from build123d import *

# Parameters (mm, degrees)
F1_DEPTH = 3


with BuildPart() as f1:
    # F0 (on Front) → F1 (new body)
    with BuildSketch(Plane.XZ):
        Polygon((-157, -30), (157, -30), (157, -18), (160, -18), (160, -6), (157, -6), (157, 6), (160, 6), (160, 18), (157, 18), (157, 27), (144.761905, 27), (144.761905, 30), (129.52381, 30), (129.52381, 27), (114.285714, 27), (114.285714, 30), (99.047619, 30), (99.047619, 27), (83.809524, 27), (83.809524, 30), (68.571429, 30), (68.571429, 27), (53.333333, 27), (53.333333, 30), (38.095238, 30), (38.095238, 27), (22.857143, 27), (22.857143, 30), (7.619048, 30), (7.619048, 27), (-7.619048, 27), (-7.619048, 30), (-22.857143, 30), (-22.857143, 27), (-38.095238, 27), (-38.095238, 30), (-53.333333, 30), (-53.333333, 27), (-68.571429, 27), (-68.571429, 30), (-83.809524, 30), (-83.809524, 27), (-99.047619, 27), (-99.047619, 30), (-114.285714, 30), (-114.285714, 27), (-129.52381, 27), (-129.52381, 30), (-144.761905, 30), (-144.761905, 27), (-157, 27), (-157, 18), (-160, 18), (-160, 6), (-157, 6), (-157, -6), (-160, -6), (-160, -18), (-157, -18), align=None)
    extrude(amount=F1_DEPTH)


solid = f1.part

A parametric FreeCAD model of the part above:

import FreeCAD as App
import Part
import Sketcher
Q = App.Units.Quantity

doc = App.newDocument("Part")
body = doc.addObject("PartDesign::Body", "Body")

# Sketch on XZ plane
sketch1 = body.newObject("Sketcher::SketchObject", "Sketch")
sketch1.AttachmentSupport = (doc.getObject("XZ_Plane"), [""])
sketch1.MapMode = "FlatFace"
sketch1.addGeometry([
    Part.LineSegment(App.Vector(-157, -30, 0), App.Vector(157, -30, 0)),  # 0
    Part.LineSegment(App.Vector(157, -30, 0), App.Vector(157, -18, 0)),  # 1
    Part.LineSegment(App.Vector(157, -18, 0), App.Vector(160, -18, 0)),  # 2
    Part.LineSegment(App.Vector(160, -18, 0), App.Vector(160, -6, 0)),  # 3
    Part.LineSegment(App.Vector(160, -6, 0), App.Vector(157, -6, 0)),  # 4
    Part.LineSegment(App.Vector(157, -6, 0), App.Vector(157, 6, 0)),  # 5
    Part.LineSegment(App.Vector(157, 6, 0), App.Vector(160, 6, 0)),  # 6
    Part.LineSegment(App.Vector(160, 6, 0), App.Vector(160, 18, 0)),  # 7
    Part.LineSegment(App.Vector(160, 18, 0), App.Vector(157, 18, 0)),  # 8
    Part.LineSegment(App.Vector(157, 18, 0), App.Vector(157, 27, 0)),  # 9
    Part.LineSegment(App.Vector(157, 27, 0), App.Vector(144.8, 27, 0)),  # 10
    Part.LineSegment(App.Vector(144.8, 27, 0), App.Vector(144.8, 30, 0)),  # 11
    Part.LineSegment(App.Vector(144.8, 30, 0), App.Vector(129.5, 30, 0)),  # 12
    Part.LineSegment(App.Vector(129.5, 30, 0), App.Vector(129.5, 27, 0)),  # 13
    Part.LineSegment(App.Vector(129.5, 27, 0), App.Vector(114.3, 27, 0)),  # 14
    Part.LineSegment(App.Vector(114.3, 27, 0), App.Vector(114.3, 30, 0)),  # 15
    Part.LineSegment(App.Vector(114.3, 30, 0), App.Vector(99, 30, 0)),  # 16
    Part.LineSegment(App.Vector(99, 30, 0), App.Vector(99, 27, 0)),  # 17
    Part.LineSegment(App.Vector(99, 27, 0), App.Vector(83.8, 27, 0)),  # 18
    Part.LineSegment(App.Vector(83.8, 27, 0), App.Vector(83.8, 30, 0)),  # 19
    Part.LineSegment(App.Vector(83.8, 30, 0), App.Vector(68.6, 30, 0)),  # 20
    Part.LineSegment(App.Vector(68.6, 30, 0), App.Vector(68.6, 27, 0)),  # 21
    Part.LineSegment(App.Vector(68.6, 27, 0), App.Vector(53.3, 27, 0)),  # 22
    Part.LineSegment(App.Vector(53.3, 27, 0), App.Vector(53.3, 30, 0)),  # 23
    Part.LineSegment(App.Vector(53.3, 30, 0), App.Vector(38.1, 30, 0)),  # 24
    Part.LineSegment(App.Vector(38.1, 30, 0), App.Vector(38.1, 27, 0)),  # 25
    Part.LineSegment(App.Vector(38.1, 27, 0), App.Vector(22.9, 27, 0)),  # 26
    Part.LineSegment(App.Vector(22.9, 27, 0), App.Vector(22.9, 30, 0)),  # 27
    Part.LineSegment(App.Vector(22.9, 30, 0), App.Vector(7.6, 30, 0)),  # 28
    Part.LineSegment(App.Vector(7.6, 30, 0), App.Vector(7.6, 27, 0)),  # 29
    Part.LineSegment(App.Vector(7.6, 27, 0), App.Vector(-7.6, 27, 0)),  # 30
    Part.LineSegment(App.Vector(-7.6, 27, 0), App.Vector(-7.6, 30, 0)),  # 31
    Part.LineSegment(App.Vector(-7.6, 30, 0), App.Vector(-22.9, 30, 0)),  # 32
    Part.LineSegment(App.Vector(-22.9, 30, 0), App.Vector(-22.9, 27, 0)),  # 33
    Part.LineSegment(App.Vector(-22.9, 27, 0), App.Vector(-38.1, 27, 0)),  # 34
    Part.LineSegment(App.Vector(-38.1, 27, 0), App.Vector(-38.1, 30, 0)),  # 35
    Part.LineSegment(App.Vector(-38.1, 30, 0), App.Vector(-53.3, 30, 0)),  # 36
    Part.LineSegment(App.Vector(-53.3, 30, 0), App.Vector(-53.3, 27, 0)),  # 37
    Part.LineSegment(App.Vector(-53.3, 27, 0), App.Vector(-68.6, 27, 0)),  # 38
    Part.LineSegment(App.Vector(-68.6, 27, 0), App.Vector(-68.6, 30, 0)),  # 39
    Part.LineSegment(App.Vector(-68.6, 30, 0), App.Vector(-83.8, 30, 0)),  # 40
    Part.LineSegment(App.Vector(-83.8, 30, 0), App.Vector(-83.8, 27, 0)),  # 41
    Part.LineSegment(App.Vector(-83.8, 27, 0), App.Vector(-99, 27, 0)),  # 42
    Part.LineSegment(App.Vector(-99, 27, 0), App.Vector(-99, 30, 0)),  # 43
    Part.LineSegment(App.Vector(-99, 30, 0), App.Vector(-114.3, 30, 0)),  # 44
    Part.LineSegment(App.Vector(-114.3, 30, 0), App.Vector(-114.3, 27, 0)),  # 45
    Part.LineSegment(App.Vector(-114.3, 27, 0), App.Vector(-129.5, 27, 0)),  # 46
    Part.LineSegment(App.Vector(-129.5, 27, 0), App.Vector(-129.5, 30, 0)),  # 47
    Part.LineSegment(App.Vector(-129.5, 30, 0), App.Vector(-144.8, 30, 0)),  # 48
    Part.LineSegment(App.Vector(-144.8, 30, 0), App.Vector(-144.8, 27, 0)),  # 49
    Part.LineSegment(App.Vector(-144.8, 27, 0), App.Vector(-157, 27, 0)),  # 50
    Part.LineSegment(App.Vector(-157, 27, 0), App.Vector(-157, 18, 0)),  # 51
    Part.LineSegment(App.Vector(-157, 18, 0), App.Vector(-160, 18, 0)),  # 52
    Part.LineSegment(App.Vector(-160, 18, 0), App.Vector(-160, 6, 0)),  # 53
    Part.LineSegment(App.Vector(-160, 6, 0), App.Vector(-157, 6, 0)),  # 54
    Part.LineSegment(App.Vector(-157, 6, 0), App.Vector(-157, -6, 0)),  # 55
    Part.LineSegment(App.Vector(-157, -6, 0), App.Vector(-160, -6, 0)),  # 56
    Part.LineSegment(App.Vector(-160, -6, 0), App.Vector(-160, -18, 0)),  # 57
    Part.LineSegment(App.Vector(-160, -18, 0), App.Vector(-157, -18, 0)),  # 58
    Part.LineSegment(App.Vector(-157, -18, 0), App.Vector(-157, -30, 0)),  # 59
], False)
sketch1.addConstraint([
    Sketcher.Constraint("Coincident", 0, 2, 1, 1),
    Sketcher.Constraint("Coincident", 1, 2, 2, 1),
    Sketcher.Constraint("Coincident", 2, 2, 3, 1),
    Sketcher.Constraint("Coincident", 3, 2, 4, 1),
    Sketcher.Constraint("Coincident", 4, 2, 5, 1),
    Sketcher.Constraint("Coincident", 5, 2, 6, 1),
    Sketcher.Constraint("Coincident", 6, 2, 7, 1),
    Sketcher.Constraint("Coincident", 7, 2, 8, 1),
    Sketcher.Constraint("Coincident", 8, 2, 9, 1),
    Sketcher.Constraint("Coincident", 9, 2, 10, 1),
    Sketcher.Constraint("Coincident", 10, 2, 11, 1),
    Sketcher.Constraint("Coincident", 11, 2, 12, 1),
    Sketcher.Constraint("Coincident", 12, 2, 13, 1),
    Sketcher.Constraint("Coincident", 13, 2, 14, 1),
    Sketcher.Constraint("Coincident", 14, 2, 15, 1),
    Sketcher.Constraint("Coincident", 15, 2, 16, 1),
    Sketcher.Constraint("Coincident", 16, 2, 17, 1),
    Sketcher.Constraint("Coincident", 17, 2, 18, 1),
    Sketcher.Constraint("Coincident", 18, 2, 19, 1),
    Sketcher.Constraint("Coincident", 19, 2, 20, 1),
    Sketcher.Constraint("Coincident", 20, 2, 21, 1),
    Sketcher.Constraint("Coincident", 21, 2, 22, 1),
    Sketcher.Constraint("Coincident", 22, 2, 23, 1),
    Sketcher.Constraint("Coincident", 23, 2, 24, 1),
    Sketcher.Constraint("Coincident", 24, 2, 25, 1),
    Sketcher.Constraint("Coincident", 25, 2, 26, 1),
    Sketcher.Constraint("Coincident", 26, 2, 27, 1),
    Sketcher.Constraint("Coincident", 27, 2, 28, 1),
    Sketcher.Constraint("Coincident", 28, 2, 29, 1),
    Sketcher.Constraint("Coincident", 29, 2, 30, 1),
    Sketcher.Constraint("Coincident", 30, 2, 31, 1),
    Sketcher.Constraint("Coincident", 31, 2, 32, 1),
    Sketcher.Constraint("Coincident", 32, 2, 33, 1),
    Sketcher.Constraint("Coincident", 33, 2, 34, 1),
    Sketcher.Constraint("Coincident", 34, 2, 35, 1),
    Sketcher.Constraint("Coincident", 35, 2, 36, 1),
    Sketcher.Constraint("Coincident", 36, 2, 37, 1),
    Sketcher.Constraint("Coincident", 37, 2, 38, 1),
    Sketcher.Constraint("Coincident", 38, 2, 39, 1),
    Sketcher.Constraint("Coincident", 39, 2, 40, 1),
    Sketcher.Constraint("Coincident", 40, 2, 41, 1),
    Sketcher.Constraint("Coincident", 41, 2, 42, 1),
    Sketcher.Constraint("Coincident", 42, 2, 43, 1),
    Sketcher.Constraint("Coincident", 43, 2, 44, 1),
    Sketcher.Constraint("Coincident", 44, 2, 45, 1),
    Sketcher.Constraint("Coincident", 45, 2, 46, 1),
    Sketcher.Constraint("Coincident", 46, 2, 47, 1),
    Sketcher.Constraint("Coincident", 47, 2, 48, 1),
    Sketcher.Constraint("Coincident", 48, 2, 49, 1),
    Sketcher.Constraint("Coincident", 49, 2, 50, 1),
    Sketcher.Constraint("Coincident", 50, 2, 51, 1),
    Sketcher.Constraint("Coincident", 51, 2, 52, 1),
    Sketcher.Constraint("Coincident", 52, 2, 53, 1),
    Sketcher.Constraint("Coincident", 53, 2, 54, 1),
    Sketcher.Constraint("Coincident", 54, 2, 55, 1),
    Sketcher.Constraint("Coincident", 55, 2, 56, 1),
    Sketcher.Constraint("Coincident", 56, 2, 57, 1),
    Sketcher.Constraint("Coincident", 57, 2, 58, 1),
    Sketcher.Constraint("Coincident", 58, 2, 59, 1),
    Sketcher.Constraint("Coincident", 59, 2, 0, 1),
    Sketcher.Constraint("Horizontal", 0),
    Sketcher.Constraint("Vertical", 1),
    Sketcher.Constraint("Horizontal", 2),
    Sketcher.Constraint("Vertical", 3),
    Sketcher.Constraint("Horizontal", 4),
    Sketcher.Constraint("Vertical", 5),
    Sketcher.Constraint("Horizontal", 6),
    Sketcher.Constraint("Vertical", 7),
    Sketcher.Constraint("Horizontal", 8),
    Sketcher.Constraint("Vertical", 9),
    Sketcher.Constraint("Horizontal", 10),
    Sketcher.Constraint("Vertical", 11),
    Sketcher.Constraint("Horizontal", 12),
    Sketcher.Constraint("Vertical", 13),
    Sketcher.Constraint("Horizontal", 14),
    Sketcher.Constraint("Vertical", 15),
    Sketcher.Constraint("Horizontal", 16),
    Sketcher.Constraint("Vertical", 17),
    Sketcher.Constraint("Horizontal", 18),
    Sketcher.Constraint("Vertical", 19),
    Sketcher.Constraint("Horizontal", 20),
    Sketcher.Constraint("Vertical", 21),
    Sketcher.Constraint("Horizontal", 22),
    Sketcher.Constraint("Vertical", 23),
    Sketcher.Constraint("Horizontal", 24),
    Sketcher.Constraint("Vertical", 25),
    Sketcher.Constraint("Horizontal", 26),
    Sketcher.Constraint("Vertical", 27),
    Sketcher.Constraint("Horizontal", 28),
    Sketcher.Constraint("Vertical", 29),
    Sketcher.Constraint("Horizontal", 30),
    Sketcher.Constraint("Vertical", 31),
    Sketcher.Constraint("Horizontal", 32),
    Sketcher.Constraint("Vertical", 33),
    Sketcher.Constraint("Horizontal", 34),
    Sketcher.Constraint("Vertical", 35),
    Sketcher.Constraint("Horizontal", 36),
    Sketcher.Constraint("Vertical", 37),
    Sketcher.Constraint("Horizontal", 38),
    Sketcher.Constraint("Vertical", 39),
    Sketcher.Constraint("Horizontal", 40),
    Sketcher.Constraint("Vertical", 41),
    Sketcher.Constraint("Horizontal", 42),
    Sketcher.Constraint("Vertical", 43),
    Sketcher.Constraint("Horizontal", 44),
    Sketcher.Constraint("Vertical", 45),
    Sketcher.Constraint("Horizontal", 46),
    Sketcher.Constraint("Vertical", 47),
    Sketcher.Constraint("Horizontal", 48),
    Sketcher.Constraint("Vertical", 49),
    Sketcher.Constraint("Horizontal", 50),
    Sketcher.Constraint("Vertical", 51),
    Sketcher.Constraint("Horizontal", 52),
    Sketcher.Constraint("Vertical", 53),
    Sketcher.Constraint("Horizontal", 54),
    Sketcher.Constraint("Vertical", 55),
    Sketcher.Constraint("Horizontal", 56),
    Sketcher.Constraint("Vertical", 57),
    Sketcher.Constraint("Horizontal", 58),
    Sketcher.Constraint("Vertical", 59),
    Sketcher.Constraint("Symmetric", 1, 2, 51, 2, -1, 1),
    Sketcher.Constraint("Symmetric", 3, 2, 53, 2, -1, 1),
    Sketcher.Constraint("Symmetric", 5, 2, 55, 2, -1, 1),
    Sketcher.Constraint("Symmetric", 7, 2, 57, 2, -1, 1),
    Sketcher.Constraint("Symmetric", 28, 2, 31, 2, -2),
    Sketcher.Constraint("Symmetric", 26, 2, 33, 2, -2),
    Sketcher.Constraint("Symmetric", 24, 2, 35, 2, -2),
    Sketcher.Constraint("Symmetric", 22, 2, 37, 2, -2),
    Sketcher.Constraint("Symmetric", 20, 2, 39, 2, -2),
    Sketcher.Constraint("Symmetric", 18, 2, 41, 2, -2),
    Sketcher.Constraint("Symmetric", 16, 2, 43, 2, -2),
    Sketcher.Constraint("Symmetric", 14, 2, 45, 2, -2),
    Sketcher.Constraint("Symmetric", 12, 2, 47, 2, -2),
    Sketcher.Constraint("Symmetric", 10, 2, 49, 2, -2),
    Sketcher.Constraint("Symmetric", 8, 2, 51, 2, -2),
    Sketcher.Constraint("Symmetric", 6, 2, 53, 2, -2),
    Sketcher.Constraint("Horizontal", 10, 2, 13, 2),
    Sketcher.Constraint("Horizontal", 12, 2, 15, 2),
    Sketcher.Constraint("Horizontal", 14, 2, 17, 2),
    Sketcher.Constraint("Horizontal", 16, 2, 19, 2),
    Sketcher.Constraint("Horizontal", 18, 2, 21, 2),
    Sketcher.Constraint("Horizontal", 20, 2, 23, 2),
    Sketcher.Constraint("Horizontal", 22, 2, 25, 2),
    Sketcher.Constraint("Horizontal", 24, 2, 27, 2),
    Sketcher.Constraint("Horizontal", 26, 2, 29, 2),
    Sketcher.Constraint("Vertical", 1, 2, 4, 2),
    Sketcher.Constraint("Vertical", 55, 2, 58, 2),
    Sketcher.Constraint("Equal", 12, 14),
    Sketcher.Constraint("Equal", 14, 16),
    Sketcher.Constraint("Equal", 16, 18),
    Sketcher.Constraint("Equal", 18, 20),
    Sketcher.Constraint("Equal", 20, 22),
    Sketcher.Constraint("Equal", 22, 24),
    Sketcher.Constraint("Equal", 24, 26),
    Sketcher.Constraint("Equal", 26, 28),
    Sketcher.Constraint("Equal", 28, 30),
    Sketcher.Constraint("Equal", 1, 3),
    Sketcher.Constraint("Equal", 3, 5),
    Sketcher.Constraint("Equal", 58, 11),
    Sketcher.Constraint("DistanceX", 0, 1, 0, 2, Q("314 mm")),
    Sketcher.Constraint("DistanceX", 2, 1, 2, 2, Q("3 mm")),
    Sketcher.Constraint("DistanceY", 1, 1, 1, 2, Q("12 mm")),
    Sketcher.Constraint("DistanceY", 9, 1, 9, 2, Q("9 mm")),
    Sketcher.Constraint("DistanceX", 10, 2, 10, 1, Q("12.238095 mm")),
])
pad1 = body.newObject("PartDesign::Pad", "Pad")
pad1.Profile = sketch1
pad1.Length = 3

doc.recompute()
